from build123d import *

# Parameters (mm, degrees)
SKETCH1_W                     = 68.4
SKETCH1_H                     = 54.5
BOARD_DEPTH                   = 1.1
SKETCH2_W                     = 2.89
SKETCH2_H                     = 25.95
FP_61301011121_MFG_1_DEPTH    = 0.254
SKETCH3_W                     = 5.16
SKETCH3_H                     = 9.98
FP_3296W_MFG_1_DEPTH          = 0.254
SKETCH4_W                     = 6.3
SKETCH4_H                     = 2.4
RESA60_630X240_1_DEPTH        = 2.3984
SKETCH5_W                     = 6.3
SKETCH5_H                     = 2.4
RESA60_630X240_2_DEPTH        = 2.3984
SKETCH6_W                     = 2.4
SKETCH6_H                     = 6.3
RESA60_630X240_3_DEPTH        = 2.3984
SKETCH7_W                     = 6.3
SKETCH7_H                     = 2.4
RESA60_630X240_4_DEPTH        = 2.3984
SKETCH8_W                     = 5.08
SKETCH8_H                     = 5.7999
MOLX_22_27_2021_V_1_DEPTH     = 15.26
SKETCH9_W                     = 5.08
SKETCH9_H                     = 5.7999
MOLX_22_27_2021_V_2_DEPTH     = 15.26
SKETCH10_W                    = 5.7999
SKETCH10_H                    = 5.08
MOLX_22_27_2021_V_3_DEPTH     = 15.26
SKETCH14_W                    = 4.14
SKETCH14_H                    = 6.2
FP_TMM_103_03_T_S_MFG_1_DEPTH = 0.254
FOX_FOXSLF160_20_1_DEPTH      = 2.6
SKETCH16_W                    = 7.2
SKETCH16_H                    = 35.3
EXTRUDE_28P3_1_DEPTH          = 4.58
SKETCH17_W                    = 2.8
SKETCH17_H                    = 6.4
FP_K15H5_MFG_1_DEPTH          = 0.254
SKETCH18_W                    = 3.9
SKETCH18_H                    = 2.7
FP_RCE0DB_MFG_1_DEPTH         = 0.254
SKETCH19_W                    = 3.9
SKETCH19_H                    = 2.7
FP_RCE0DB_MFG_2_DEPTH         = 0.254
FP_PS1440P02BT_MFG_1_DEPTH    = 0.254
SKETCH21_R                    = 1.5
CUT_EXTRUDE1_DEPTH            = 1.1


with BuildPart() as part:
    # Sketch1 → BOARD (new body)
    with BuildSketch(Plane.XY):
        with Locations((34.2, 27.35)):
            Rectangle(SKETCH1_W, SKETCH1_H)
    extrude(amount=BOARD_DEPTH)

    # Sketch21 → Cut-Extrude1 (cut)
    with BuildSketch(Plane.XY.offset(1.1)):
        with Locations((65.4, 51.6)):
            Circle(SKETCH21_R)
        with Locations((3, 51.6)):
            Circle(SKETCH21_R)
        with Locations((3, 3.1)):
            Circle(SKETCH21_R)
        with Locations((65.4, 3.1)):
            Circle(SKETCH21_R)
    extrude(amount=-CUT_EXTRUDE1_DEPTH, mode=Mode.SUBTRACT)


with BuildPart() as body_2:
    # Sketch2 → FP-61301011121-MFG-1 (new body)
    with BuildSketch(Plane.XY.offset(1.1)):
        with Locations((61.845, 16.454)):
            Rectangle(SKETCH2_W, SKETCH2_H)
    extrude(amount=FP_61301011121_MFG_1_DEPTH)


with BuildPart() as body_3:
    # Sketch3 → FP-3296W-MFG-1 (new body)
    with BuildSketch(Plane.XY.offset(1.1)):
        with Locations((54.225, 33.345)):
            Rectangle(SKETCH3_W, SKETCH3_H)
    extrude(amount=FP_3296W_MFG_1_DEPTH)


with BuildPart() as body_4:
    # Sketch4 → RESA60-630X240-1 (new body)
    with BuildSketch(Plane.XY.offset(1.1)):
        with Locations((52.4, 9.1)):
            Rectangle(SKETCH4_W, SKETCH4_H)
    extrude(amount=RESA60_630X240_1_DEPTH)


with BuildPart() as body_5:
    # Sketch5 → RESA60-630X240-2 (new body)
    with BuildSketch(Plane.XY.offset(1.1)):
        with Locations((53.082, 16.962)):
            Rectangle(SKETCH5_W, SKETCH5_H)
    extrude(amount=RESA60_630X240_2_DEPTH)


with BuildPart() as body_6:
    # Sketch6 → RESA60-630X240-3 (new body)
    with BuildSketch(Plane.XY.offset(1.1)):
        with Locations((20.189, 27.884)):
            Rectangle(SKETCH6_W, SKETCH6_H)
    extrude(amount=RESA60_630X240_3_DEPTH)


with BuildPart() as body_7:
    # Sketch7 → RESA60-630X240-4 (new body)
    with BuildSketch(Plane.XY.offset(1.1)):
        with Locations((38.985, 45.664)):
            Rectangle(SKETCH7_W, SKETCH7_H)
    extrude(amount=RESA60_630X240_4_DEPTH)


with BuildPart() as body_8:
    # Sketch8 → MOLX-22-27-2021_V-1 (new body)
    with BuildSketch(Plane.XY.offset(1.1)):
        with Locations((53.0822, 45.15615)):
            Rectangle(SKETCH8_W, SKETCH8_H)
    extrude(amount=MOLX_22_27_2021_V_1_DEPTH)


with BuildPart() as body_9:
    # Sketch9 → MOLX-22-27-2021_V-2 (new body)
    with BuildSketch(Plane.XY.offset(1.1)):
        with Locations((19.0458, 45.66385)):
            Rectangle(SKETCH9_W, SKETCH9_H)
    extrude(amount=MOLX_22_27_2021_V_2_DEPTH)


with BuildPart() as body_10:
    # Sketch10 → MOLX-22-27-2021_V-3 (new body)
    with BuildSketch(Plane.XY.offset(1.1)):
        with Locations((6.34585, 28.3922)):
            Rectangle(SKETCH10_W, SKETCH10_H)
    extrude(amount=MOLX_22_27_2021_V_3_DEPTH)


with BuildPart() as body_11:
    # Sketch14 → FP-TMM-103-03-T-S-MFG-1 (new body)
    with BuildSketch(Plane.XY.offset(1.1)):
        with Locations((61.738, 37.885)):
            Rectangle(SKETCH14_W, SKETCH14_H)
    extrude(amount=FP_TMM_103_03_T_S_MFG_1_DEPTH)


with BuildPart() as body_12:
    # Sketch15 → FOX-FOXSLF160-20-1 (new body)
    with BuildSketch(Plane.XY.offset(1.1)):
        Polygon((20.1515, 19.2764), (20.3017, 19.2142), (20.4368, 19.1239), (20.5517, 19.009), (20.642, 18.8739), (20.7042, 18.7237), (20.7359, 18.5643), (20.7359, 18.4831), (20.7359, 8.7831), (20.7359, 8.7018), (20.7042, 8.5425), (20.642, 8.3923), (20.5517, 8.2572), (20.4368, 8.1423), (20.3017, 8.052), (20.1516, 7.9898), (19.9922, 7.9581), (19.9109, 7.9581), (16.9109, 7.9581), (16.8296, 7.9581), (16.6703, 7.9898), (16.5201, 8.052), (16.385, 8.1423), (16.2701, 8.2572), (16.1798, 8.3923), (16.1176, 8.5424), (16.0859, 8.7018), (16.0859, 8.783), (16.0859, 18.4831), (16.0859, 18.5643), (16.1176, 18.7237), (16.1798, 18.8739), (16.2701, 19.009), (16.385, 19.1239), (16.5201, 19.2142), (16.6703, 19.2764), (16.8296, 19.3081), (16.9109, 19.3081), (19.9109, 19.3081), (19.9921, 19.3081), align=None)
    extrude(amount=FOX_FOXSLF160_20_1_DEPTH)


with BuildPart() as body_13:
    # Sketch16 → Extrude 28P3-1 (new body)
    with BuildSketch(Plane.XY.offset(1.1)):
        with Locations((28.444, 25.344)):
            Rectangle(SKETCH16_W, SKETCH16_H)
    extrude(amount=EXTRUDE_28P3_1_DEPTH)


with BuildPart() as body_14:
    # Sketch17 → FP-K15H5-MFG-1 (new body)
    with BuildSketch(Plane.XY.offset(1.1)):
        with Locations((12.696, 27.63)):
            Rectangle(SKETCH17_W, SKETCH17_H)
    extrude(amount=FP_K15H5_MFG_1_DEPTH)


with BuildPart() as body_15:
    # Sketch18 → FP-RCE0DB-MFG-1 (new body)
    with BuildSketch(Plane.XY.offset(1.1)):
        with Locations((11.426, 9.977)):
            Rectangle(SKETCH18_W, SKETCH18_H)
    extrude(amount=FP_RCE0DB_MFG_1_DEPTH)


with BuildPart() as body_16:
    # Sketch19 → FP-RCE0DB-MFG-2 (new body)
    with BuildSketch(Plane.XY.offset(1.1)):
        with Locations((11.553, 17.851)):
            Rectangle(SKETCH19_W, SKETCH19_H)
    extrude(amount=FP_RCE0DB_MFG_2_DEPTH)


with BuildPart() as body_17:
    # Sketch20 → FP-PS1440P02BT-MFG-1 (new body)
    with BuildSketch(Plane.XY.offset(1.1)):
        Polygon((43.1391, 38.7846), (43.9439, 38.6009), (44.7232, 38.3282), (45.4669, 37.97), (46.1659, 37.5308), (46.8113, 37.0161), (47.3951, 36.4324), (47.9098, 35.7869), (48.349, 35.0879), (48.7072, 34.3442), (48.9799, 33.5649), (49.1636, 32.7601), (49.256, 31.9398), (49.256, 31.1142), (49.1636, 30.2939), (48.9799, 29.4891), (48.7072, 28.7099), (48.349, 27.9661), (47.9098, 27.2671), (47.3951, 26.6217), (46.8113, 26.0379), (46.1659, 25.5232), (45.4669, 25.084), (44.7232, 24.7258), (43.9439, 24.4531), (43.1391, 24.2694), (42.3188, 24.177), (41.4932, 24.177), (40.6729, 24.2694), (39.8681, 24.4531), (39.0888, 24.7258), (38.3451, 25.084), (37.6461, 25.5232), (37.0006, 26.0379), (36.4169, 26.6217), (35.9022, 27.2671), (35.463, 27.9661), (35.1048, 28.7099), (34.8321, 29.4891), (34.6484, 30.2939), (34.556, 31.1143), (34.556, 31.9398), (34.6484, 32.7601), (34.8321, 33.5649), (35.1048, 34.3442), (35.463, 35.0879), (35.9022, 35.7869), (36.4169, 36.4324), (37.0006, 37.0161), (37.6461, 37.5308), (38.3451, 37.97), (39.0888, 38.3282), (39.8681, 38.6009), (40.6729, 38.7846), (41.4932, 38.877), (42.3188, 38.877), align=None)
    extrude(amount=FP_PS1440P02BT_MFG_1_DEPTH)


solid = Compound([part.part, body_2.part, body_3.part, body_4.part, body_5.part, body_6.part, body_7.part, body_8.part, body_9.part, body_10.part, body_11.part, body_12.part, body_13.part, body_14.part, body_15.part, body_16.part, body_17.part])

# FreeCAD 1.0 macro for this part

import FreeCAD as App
import Part
import Sketcher
Q = App.Units.Quantity

doc = App.newDocument("Part")
body = doc.addObject("PartDesign::Body", "Body")

# Sketch on XY plane
sketch1 = doc.addObject("Sketcher::SketchObject", "Sketch")
body.addObject(sketch1)
sketch1.AttachmentSupport = (doc.XY_Plane, [""])
sketch1.MapMode = "FlatFace"
sketch1.addGeometry([
    Part.LineSegment(App.Vector(0, 55, 0), App.Vector(0, 0, 0)),
    Part.LineSegment(App.Vector(0, 0, 0), App.Vector(68, 0, 0)),
    Part.LineSegment(App.Vector(68, 0, 0), App.Vector(68, 55, 0)),
    Part.LineSegment(App.Vector(68, 55, 0), App.Vector(0, 55, 0)),
], False)
sketch1.addConstraint([
    Sketcher.Constraint("Coincident", 0, 2, 1, 1),
    Sketcher.Constraint("Coincident", 1, 2, 2, 1),
    Sketcher.Constraint("Coincident", 2, 2, 3, 1),
    Sketcher.Constraint("Coincident", 3, 2, 0, 1),
    Sketcher.Constraint("Vertical", 0),
    Sketcher.Constraint("Horizontal", 1),
    Sketcher.Constraint("Vertical", 2),
    Sketcher.Constraint("Horizontal", 3),
    Sketcher.Constraint("PointOnObject", 0, 2, -2),
    Sketcher.Constraint("DistanceX", 1, 1, 1, 2, Q("68.4 mm")),
    Sketcher.Constraint("DistanceY", 0, 2, 0, 1, Q("54.5 mm")),
    Sketcher.Constraint("DistanceY", -1, 1, 0, 2, Q("0.1 mm")),
])
pad1 = doc.addObject("PartDesign::Pad", "Pad")
body.addObject(pad1)
pad1.Profile = sketch1
pad1.Length = 1.1

# Sketch on XY plane
sketch2 = doc.addObject("Sketcher::SketchObject", "Sketch001")
body.addObject(sketch2)
sketch2.AttachmentSupport = (doc.XY_Plane, [""])
sketch2.MapMode = "FlatFace"
sketch2.AttachmentOffset = App.Placement(App.Vector(0, 0, 1.1), App.Rotation())
sketch2.addGeometry([
    Part.Circle(App.Vector(65.4, 51.6, 0), App.Vector(0, 0, 1), 1.5),
    Part.Circle(App.Vector(3, 51.6, 0), App.Vector(0, 0, 1), 1.5),
    Part.Circle(App.Vector(3, 3.1, 0), App.Vector(0, 0, 1), 1.5),
    Part.Circle(App.Vector(65.4, 3.1, 0), App.Vector(0, 0, 1), 1.5),
], False)
sketch2.addConstraint([
    Sketcher.Constraint("Equal", 0, 1),
    Sketcher.Constraint("Equal", 1, 2),
    Sketcher.Constraint("Equal", 2, 3),
    Sketcher.Constraint("Horizontal", 0, 3, 1, 3),
    Sketcher.Constraint("Horizontal", 2, 3, 3, 3),
    Sketcher.Constraint("Vertical", 1, 3, 2, 3),
    Sketcher.Constraint("Vertical", 0, 3, 3, 3),
    Sketcher.Constraint("Diameter", 0, Q("3 mm")),
    Sketcher.Constraint("DistanceX", -1, 1, 1, 3, Q("3 mm")),
    Sketcher.Constraint("DistanceX", -1, 1, 0, 3, Q("65.4 mm")),
    Sketcher.Constraint("DistanceY", -1, 1, 0, 3, Q("51.6 mm")),
    Sketcher.Constraint("DistanceY", -1, 1, 2, 3, Q("3.1 mm")),
])
pocket1 = doc.addObject("PartDesign::Pocket", "Pocket")
body.addObject(pocket1)
pocket1.Profile = sketch2
pocket1.Length = 1.1
body2 = doc.addObject("PartDesign::Body", "Body001")

# Sketch on XY plane
sketch3 = doc.addObject("Sketcher::SketchObject", "Sketch002")
body2.addObject(sketch3)
sketch3.AttachmentSupport = (doc.getObject("XY_Plane001"), [""])
sketch3.MapMode = "FlatFace"
sketch3.AttachmentOffset = App.Placement(App.Vector(0, 0, 1.1), App.Rotation())
sketch3.addGeometry([
    Part.LineSegment(App.Vector(60.4, 29.4, 0), App.Vector(60.4, 3.5, 0)),
    Part.LineSegment(App.Vector(60.4, 3.5, 0), App.Vector(63.3, 3.5, 0)),
    Part.LineSegment(App.Vector(63.3, 3.5, 0), App.Vector(63.3, 29.4, 0)),
    Part.LineSegment(App.Vector(63.3, 29.4, 0), App.Vector(60.4, 29.4, 0)),
], False)
sketch3.addConstraint([
    Sketcher.Constraint("Coincident", 0, 2, 1, 1),
    Sketcher.Constraint("Coincident", 1, 2, 2, 1),
    Sketcher.Constraint("Coincident", 2, 2, 3, 1),
    Sketcher.Constraint("Coincident", 3, 2, 0, 1),
    Sketcher.Constraint("Vertical", 0),
    Sketcher.Constraint("Horizontal", 1),
    Sketcher.Constraint("Vertical", 2),
    Sketcher.Constraint("Horizontal", 3),
    Sketcher.Constraint("DistanceX", 1, 1, 1, 2, Q("2.89 mm")),
    Sketcher.Constraint("DistanceY", 0, 2, 0, 1, Q("25.95 mm")),
    Sketcher.Constraint("DistanceX", -1, 1, 0, 2, Q("60.4 mm")),
    Sketcher.Constraint("DistanceY", -1, 1, 0, 2, Q("3.479 mm")),
])
pad2 = doc.addObject("PartDesign::Pad", "Pad001")
body2.addObject(pad2)
pad2.Profile = sketch3
pad2.Length = 0.254
body3 = doc.addObject("PartDesign::Body", "Body002")

# Sketch on XY plane
sketch4 = doc.addObject("Sketcher::SketchObject", "Sketch003")
body3.addObject(sketch4)
sketch4.AttachmentSupport = (doc.getObject("XY_Plane002"), [""])
sketch4.MapMode = "FlatFace"
sketch4.AttachmentOffset = App.Placement(App.Vector(0, 0, 1.1), App.Rotation())
sketch4.addGeometry([
    Part.LineSegment(App.Vector(52, 38, 0), App.Vector(52, 28, 0)),
    Part.LineSegment(App.Vector(52, 28, 0), App.Vector(57, 28, 0)),
    Part.LineSegment(App.Vector(57, 28, 0), App.Vector(57, 38, 0)),
    Part.LineSegment(App.Vector(57, 38, 0), App.Vector(52, 38, 0)),
], False)
sketch4.addConstraint([
    Sketcher.Constraint("Coincident", 0, 2, 1, 1),
    Sketcher.Constraint("Coincident", 1, 2, 2, 1),
    Sketcher.Constraint("Coincident", 2, 2, 3, 1),
    Sketcher.Constraint("Coincident", 3, 2, 0, 1),
    Sketcher.Constraint("Vertical", 0),
    Sketcher.Constraint("Horizontal", 1),
    Sketcher.Constraint("Vertical", 2),
    Sketcher.Constraint("Horizontal", 3),
    Sketcher.Constraint("DistanceX", 1, 1, 1, 2, Q("5.16 mm")),
    Sketcher.Constraint("DistanceY", 0, 2, 0, 1, Q("9.98 mm")),
    Sketcher.Constraint("DistanceX", -1, 1, 0, 2, Q("51.645 mm")),
    Sketcher.Constraint("DistanceY", -1, 1, 0, 2, Q("28.355 mm")),
])
pad3 = doc.addObject("PartDesign::Pad", "Pad002")
body3.addObject(pad3)
pad3.Profile = sketch4
pad3.Length = 0.254
body4 = doc.addObject("PartDesign::Body", "Body003")

# Sketch on XY plane
sketch5 = doc.addObject("Sketcher::SketchObject", "Sketch004")
body4.addObject(sketch5)
sketch5.AttachmentSupport = (doc.getObject("XY_Plane003"), [""])
sketch5.MapMode = "FlatFace"
sketch5.AttachmentOffset = App.Placement(App.Vector(0, 0, 1.1), App.Rotation())
sketch5.addGeometry([
    Part.LineSegment(App.Vector(49.2, 10.3, 0), App.Vector(49.2, 7.9, 0)),
    Part.LineSegment(App.Vector(49.2, 7.9, 0), App.Vector(55.5, 7.9, 0)),
    Part.LineSegment(App.Vector(55.5, 7.9, 0), App.Vector(55.5, 10.3, 0)),
    Part.LineSegment(App.Vector(55.5, 10.3, 0), App.Vector(49.2, 10.3, 0)),
], False)
sketch5.addConstraint([
    Sketcher.Constraint("Coincident", 0, 2, 1, 1),
    Sketcher.Constraint("Coincident", 1, 2, 2, 1),
    Sketcher.Constraint("Coincident", 2, 2, 3, 1),
    Sketcher.Constraint("Coincident", 3, 2, 0, 1),
    Sketcher.Constraint("Vertical", 0),
    Sketcher.Constraint("Horizontal", 1),
    Sketcher.Constraint("Vertical", 2),
    Sketcher.Constraint("Horizontal", 3),
    Sketcher.Constraint("DistanceX", 1, 1, 1, 2, Q("6.3 mm")),
    Sketcher.Constraint("DistanceY", 0, 2, 0, 1, Q("2.4 mm")),
    Sketcher.Constraint("DistanceY", -1, 1, 0, 2, Q("7.9 mm")),
    Sketcher.Constraint("DistanceX", -1, 1, 0, 2, Q("49.25 mm")),
])
pad4 = doc.addObject("PartDesign::Pad", "Pad003")
body4.addObject(pad4)
pad4.Profile = sketch5
pad4.Length = 2.3984
body5 = doc.addObject("PartDesign::Body", "Body004")

# Sketch on XY plane
sketch6 = doc.addObject("Sketcher::SketchObject", "Sketch005")
body5.addObject(sketch6)
sketch6.AttachmentSupport = (doc.getObject("XY_Plane004"), [""])
sketch6.MapMode = "FlatFace"
sketch6.AttachmentOffset = App.Placement(App.Vector(0, 0, 1.1), App.Rotation())
sketch6.addGeometry([
    Part.LineSegment(App.Vector(49.9, 18.2, 0), App.Vector(49.9, 15.8, 0)),
    Part.LineSegment(App.Vector(49.9, 15.8, 0), App.Vector(56.2, 15.8, 0)),
    Part.LineSegment(App.Vector(56.2, 15.8, 0), App.Vector(56.2, 18.2, 0)),
    Part.LineSegment(App.Vector(56.2, 18.2, 0), App.Vector(49.9, 18.2, 0)),
], False)
sketch6.addConstraint([
    Sketcher.Constraint("Coincident", 0, 2, 1, 1),
    Sketcher.Constraint("Coincident", 1, 2, 2, 1),
    Sketcher.Constraint("Coincident", 2, 2, 3, 1),
    Sketcher.Constraint("Coincident", 3, 2, 0, 1),
    Sketcher.Constraint("Vertical", 0),
    Sketcher.Constraint("Horizontal", 1),
    Sketcher.Constraint("Vertical", 2),
    Sketcher.Constraint("Horizontal", 3),
    Sketcher.Constraint("DistanceX", 1, 1, 1, 2, Q("6.3 mm")),
    Sketcher.Constraint("DistanceY", 0, 2, 0, 1, Q("2.4 mm")),
    Sketcher.Constraint("DistanceX", -1, 1, 0, 2, Q("49.932 mm")),
    Sketcher.Constraint("DistanceY", -1, 1, 0, 2, Q("15.762 mm")),
])
pad5 = doc.addObject("PartDesign::Pad", "Pad004")
body5.addObject(pad5)
pad5.Profile = sketch6
pad5.Length = 2.3984
body6 = doc.addObject("PartDesign::Body", "Body005")

# Sketch on XY plane
sketch7 = doc.addObject("Sketcher::SketchObject", "Sketch006")
body6.addObject(sketch7)
sketch7.AttachmentSupport = (doc.getObject("XY_Plane005"), [""])
sketch7.MapMode = "FlatFace"
sketch7.AttachmentOffset = App.Placement(App.Vector(0, 0, 1.1), App.Rotation())
sketch7.addGeometry([
    Part.LineSegment(App.Vector(19, 31, 0), App.Vector(19, 24.7, 0)),
    Part.LineSegment(App.Vector(19, 24.7, 0), App.Vector(21.4, 24.7, 0)),
    Part.LineSegment(App.Vector(21.4, 24.7, 0), App.Vector(21.4, 31, 0)),
    Part.LineSegment(App.Vector(21.4, 31, 0), App.Vector(19, 31, 0)),
], False)
sketch7.addConstraint([
    Sketcher.Constraint("Coincident", 0, 2, 1, 1),
    Sketcher.Constraint("Coincident", 1, 2, 2, 1),
    Sketcher.Constraint("Coincident", 2, 2, 3, 1),
    Sketcher.Constraint("Coincident", 3, 2, 0, 1),
    Sketcher.Constraint("Vertical", 0),
    Sketcher.Constraint("Horizontal", 1),
    Sketcher.Constraint("Vertical", 2),
    Sketcher.Constraint("Horizontal", 3),
    Sketcher.Constraint("DistanceX", 1, 1, 1, 2, Q("2.4 mm")),
    Sketcher.Constraint("DistanceY", 0, 2, 0, 1, Q("6.3 mm")),
    Sketcher.Constraint("DistanceX", -1, 1, 0, 2, Q("18.989 mm")),
    Sketcher.Constraint("DistanceY", -1, 1, 0, 2, Q("24.734 mm")),
])
pad6 = doc.addObject("PartDesign::Pad", "Pad005")
body6.addObject(pad6)
pad6.Profile = sketch7
pad6.Length = 2.3984
body7 = doc.addObject("PartDesign::Body", "Body006")

# Sketch on XY plane
sketch8 = doc.addObject("Sketcher::SketchObject", "Sketch007")
body7.addObject(sketch8)
sketch8.AttachmentSupport = (doc.getObject("XY_Plane006"), [""])
sketch8.MapMode = "FlatFace"
sketch8.AttachmentOffset = App.Placement(App.Vector(0, 0, 1.1), App.Rotation())
sketch8.addGeometry([
    Part.LineSegment(App.Vector(35.8, 46.9, 0), App.Vector(35.8, 44.5, 0)),
    Part.LineSegment(App.Vector(35.8, 44.5, 0), App.Vector(42.1, 44.5, 0)),
    Part.LineSegment(App.Vector(42.1, 44.5, 0), App.Vector(42.1, 46.9, 0)),
    Part.LineSegment(App.Vector(42.1, 46.9, 0), App.Vector(35.8, 46.9, 0)),
], False)
sketch8.addConstraint([
    Sketcher.Constraint("Coincident", 0, 2, 1, 1),
    Sketcher.Constraint("Coincident", 1, 2, 2, 1),
    Sketcher.Constraint("Coincident", 2, 2, 3, 1),
    Sketcher.Constraint("Coincident", 3, 2, 0, 1),
    Sketcher.Constraint("Vertical", 0),
    Sketcher.Constraint("Horizontal", 1),
    Sketcher.Constraint("Vertical", 2),
    Sketcher.Constraint("Horizontal", 3),
    Sketcher.Constraint("DistanceX", 1, 1, 1, 2, Q("6.3 mm")),
    Sketcher.Constraint("DistanceY", 0, 2, 0, 1, Q("2.4 mm")),
    Sketcher.Constraint("DistanceX", -1, 1, 0, 2, Q("35.835 mm")),
    Sketcher.Constraint("DistanceY", -1, 1, 0, 2, Q("44.464 mm")),
])
pad7 = doc.addObject("PartDesign::Pad", "Pad006")
body7.addObject(pad7)
pad7.Profile = sketch8
pad7.Length = 2.3984
body8 = doc.addObject("PartDesign::Body", "Body007")

# Sketch on XY plane
sketch9 = doc.addObject("Sketcher::SketchObject", "Sketch008")
body8.addObject(sketch9)
sketch9.AttachmentSupport = (doc.getObject("XY_Plane007"), [""])
sketch9.MapMode = "FlatFace"
sketch9.AttachmentOffset = App.Placement(App.Vector(0, 0, 1.1), App.Rotation())
sketch9.addGeometry([
    Part.LineSegment(App.Vector(51, 48, 0), App.Vector(51, 42, 0)),
    Part.LineSegment(App.Vector(51, 42, 0), App.Vector(56, 42, 0)),
    Part.LineSegment(App.Vector(56, 42, 0), App.Vector(56, 48, 0)),
    Part.LineSegment(App.Vector(56, 48, 0), App.Vector(51, 48, 0)),
], False)
sketch9.addConstraint([
    Sketcher.Constraint("Coincident", 0, 2, 1, 1),
    Sketcher.Constraint("Coincident", 1, 2, 2, 1),
    Sketcher.Constraint("Coincident", 2, 2, 3, 1),
    Sketcher.Constraint("Coincident", 3, 2, 0, 1),
    Sketcher.Constraint("Vertical", 0),
    Sketcher.Constraint("Horizontal", 1),
    Sketcher.Constraint("Vertical", 2),
    Sketcher.Constraint("Horizontal", 3),
    Sketcher.Constraint("DistanceX", 1, 1, 1, 2, Q("5.08 mm")),
    Sketcher.Constraint("DistanceY", 0, 2, 0, 1, Q("5.7999 mm")),
    Sketcher.Constraint("DistanceX", -1, 1, 0, 2, Q("50.5422 mm")),
    Sketcher.Constraint("DistanceY", -1, 1, 0, 2, Q("42.2562 mm")),
])
pad8 = doc.addObject("PartDesign::Pad", "Pad007")
body8.addObject(pad8)
pad8.Profile = sketch9
pad8.Length = 15.26
body9 = doc.addObject("PartDesign::Body", "Body008")

# Sketch on XY plane
sketch10 = doc.addObject("Sketcher::SketchObject", "Sketch009")
body9.addObject(sketch10)
sketch10.AttachmentSupport = (doc.getObject("XY_Plane008"), [""])
sketch10.MapMode = "FlatFace"
sketch10.AttachmentOffset = App.Placement(App.Vector(0, 0, 1.1), App.Rotation())
sketch10.addGeometry([
    Part.LineSegment(App.Vector(17, 49, 0), App.Vector(17, 43, 0)),
    Part.LineSegment(App.Vector(17, 43, 0), App.Vector(22, 43, 0)),
    Part.LineSegment(App.Vector(22, 43, 0), App.Vector(22, 49, 0)),
    Part.LineSegment(App.Vector(22, 49, 0), App.Vector(17, 49, 0)),
], False)
sketch10.addConstraint([
    Sketcher.Constraint("Coincident", 0, 2, 1, 1),
    Sketcher.Constraint("Coincident", 1, 2, 2, 1),
    Sketcher.Constraint("Coincident", 2, 2, 3, 1),
    Sketcher.Constraint("Coincident", 3, 2, 0, 1),
    Sketcher.Constraint("Vertical", 0),
    Sketcher.Constraint("Horizontal", 1),
    Sketcher.Constraint("Vertical", 2),
    Sketcher.Constraint("Horizontal", 3),
    Sketcher.Constraint("DistanceX", 1, 1, 1, 2, Q("5.08 mm")),
    Sketcher.Constraint("DistanceY", 0, 2, 0, 1, Q("5.7999 mm")),
    Sketcher.Constraint("DistanceX", -1, 1, 0, 2, Q("16.5058 mm")),
    Sketcher.Constraint("DistanceY", -1, 1, 0, 2, Q("42.7639 mm")),
])
pad9 = doc.addObject("PartDesign::Pad", "Pad008")
body9.addObject(pad9)
pad9.Profile = sketch10
pad9.Length = 15.26
body10 = doc.addObject("PartDesign::Body", "Body009")

# Sketch on XY plane
sketch11 = doc.addObject("Sketcher::SketchObject", "Sketch010")
body10.addObject(sketch11)
sketch11.AttachmentSupport = (doc.getObject("XY_Plane009"), [""])
sketch11.MapMode = "FlatFace"
sketch11.AttachmentOffset = App.Placement(App.Vector(0, 0, 1.1), App.Rotation())
sketch11.addGeometry([
    Part.LineSegment(App.Vector(3, 31, 0), App.Vector(3, 26, 0)),
    Part.LineSegment(App.Vector(3, 26, 0), App.Vector(9, 26, 0)),
    Part.LineSegment(App.Vector(9, 26, 0), App.Vector(9, 31, 0)),
    Part.LineSegment(App.Vector(9, 31, 0), App.Vector(3, 31, 0)),
], False)
sketch11.addConstraint([
    Sketcher.Constraint("Coincident", 0, 2, 1, 1),
    Sketcher.Constraint("Coincident", 1, 2, 2, 1),
    Sketcher.Constraint("Coincident", 2, 2, 3, 1),
    Sketcher.Constraint("Coincident", 3, 2, 0, 1),
    Sketcher.Constraint("Vertical", 0),
    Sketcher.Constraint("Horizontal", 1),
    Sketcher.Constraint("Vertical", 2),
    Sketcher.Constraint("Horizontal", 3),
    Sketcher.Constraint("DistanceY", 0, 2, 0, 1, Q("5.08 mm")),
    Sketcher.Constraint("DistanceX", 1, 1, 1, 2, Q("5.7999 mm")),
    Sketcher.Constraint("DistanceX", -1, 1, 0, 2, Q("3.4459 mm")),
    Sketcher.Constraint("DistanceY", -1, 1, 0, 2, Q("25.8522 mm")),
])
pad10 = doc.addObject("PartDesign::Pad", "Pad009")
body10.addObject(pad10)
pad10.Profile = sketch11
pad10.Length = 15.26
body11 = doc.addObject("PartDesign::Body", "Body010")

# Sketch on XY plane
sketch12 = doc.addObject("Sketcher::SketchObject", "Sketch011")
body11.addObject(sketch12)
sketch12.AttachmentSupport = (doc.getObject("XY_Plane010"), [""])
sketch12.MapMode = "FlatFace"
sketch12.AttachmentOffset = App.Placement(App.Vector(0, 0, 1.1), App.Rotation())
sketch12.addGeometry([
    Part.LineSegment(App.Vector(59.7, 41, 0), App.Vector(59.7, 34.8, 0)),
    Part.LineSegment(App.Vector(59.7, 34.8, 0), App.Vector(63.8, 34.8, 0)),
    Part.LineSegment(App.Vector(63.8, 34.8, 0), App.Vector(63.8, 41, 0)),
    Part.LineSegment(App.Vector(63.8, 41, 0), App.Vector(59.7, 41, 0)),
], False)
sketch12.addConstraint([
    Sketcher.Constraint("Coincident", 0, 2, 1, 1),
    Sketcher.Constraint("Coincident", 1, 2, 2, 1),
    Sketcher.Constraint("Coincident", 2, 2, 3, 1),
    Sketcher.Constraint("Coincident", 3, 2, 0, 1),
    Sketcher.Constraint("Vertical", 0),
    Sketcher.Constraint("Horizontal", 1),
    Sketcher.Constraint("Vertical", 2),
    Sketcher.Constraint("Horizontal", 3),
    Sketcher.Constraint("DistanceY", 0, 2, 0, 1, Q("6.2 mm")),
    Sketcher.Constraint("DistanceX", 1, 1, 1, 2, Q("4.14 mm")),
    Sketcher.Constraint("DistanceX", -1, 1, 0, 2, Q("59.668 mm")),
    Sketcher.Constraint("DistanceY", -1, 1, 0, 2, Q("34.785 mm")),
])
pad11 = doc.addObject("PartDesign::Pad", "Pad010")
body11.addObject(pad11)
pad11.Profile = sketch12
pad11.Length = 0.254
body12 = doc.addObject("PartDesign::Body", "Body011")

# Sketch on XY plane
sketch13 = doc.addObject("Sketcher::SketchObject", "Sketch012")
body12.addObject(sketch13)
sketch13.AttachmentSupport = (doc.getObject("XY_Plane011"), [""])
sketch13.MapMode = "FlatFace"
sketch13.AttachmentOffset = App.Placement(App.Vector(0, 0, 1.1), App.Rotation())
sketch13.addGeometry([
    Part.LineSegment(App.Vector(20.3, 19.21, 0), App.Vector(20.15, 19.28, 0)),  # 0
    Part.LineSegment(App.Vector(20.15, 19.28, 0), App.Vector(19.99, 19.31, 0)),  # 1
    Part.LineSegment(App.Vector(19.99, 19.31, 0), App.Vector(16.83, 19.31, 0)),  # 2
    Part.LineSegment(App.Vector(16.83, 19.31, 0), App.Vector(16.67, 19.28, 0)),  # 3
    Part.LineSegment(App.Vector(16.67, 19.28, 0), App.Vector(16.52, 19.21, 0)),  # 4
    Part.LineSegment(App.Vector(16.52, 19.21, 0), App.Vector(16.39, 19.12, 0)),  # 5
    Part.LineSegment(App.Vector(16.39, 19.12, 0), App.Vector(16.27, 19.01, 0)),  # 6
    Part.LineSegment(App.Vector(16.27, 19.01, 0), App.Vector(16.18, 18.87, 0)),  # 7
    Part.LineSegment(App.Vector(16.18, 18.87, 0), App.Vector(16.12, 18.72, 0)),  # 8
    Part.LineSegment(App.Vector(16.12, 18.72, 0), App.Vector(16.09, 18.56, 0)),  # 9
    Part.LineSegment(App.Vector(16.09, 18.56, 0), App.Vector(16.09, 8.7, 0)),  # 10
    Part.LineSegment(App.Vector(16.09, 8.7, 0), App.Vector(16.12, 8.54, 0)),  # 11
    Part.LineSegment(App.Vector(16.12, 8.54, 0), App.Vector(16.18, 8.39, 0)),  # 12
    Part.LineSegment(App.Vector(16.18, 8.39, 0), App.Vector(16.27, 8.26, 0)),  # 13
    Part.LineSegment(App.Vector(16.27, 8.26, 0), App.Vector(16.39, 8.14, 0)),  # 14
    Part.LineSegment(App.Vector(16.39, 8.14, 0), App.Vector(16.52, 8.05, 0)),  # 15
    Part.LineSegment(App.Vector(16.52, 8.05, 0), App.Vector(16.67, 7.99, 0)),  # 16
    Part.LineSegment(App.Vector(16.67, 7.99, 0), App.Vector(16.83, 7.96, 0)),  # 17
    Part.LineSegment(App.Vector(16.83, 7.96, 0), App.Vector(19.99, 7.96, 0)),  # 18
    Part.LineSegment(App.Vector(19.99, 7.96, 0), App.Vector(20.15, 7.99, 0)),  # 19
    Part.LineSegment(App.Vector(20.15, 7.99, 0), App.Vector(20.3, 8.05, 0)),  # 20
    Part.LineSegment(App.Vector(20.3, 8.05, 0), App.Vector(20.44, 8.14, 0)),  # 21
    Part.LineSegment(App.Vector(20.44, 8.14, 0), App.Vector(20.55, 8.26, 0)),  # 22
    Part.LineSegment(App.Vector(20.55, 8.26, 0), App.Vector(20.64, 8.39, 0)),  # 23
    Part.LineSegment(App.Vector(20.64, 8.39, 0), App.Vector(20.7, 8.54, 0)),  # 24
    Part.LineSegment(App.Vector(20.7, 8.54, 0), App.Vector(20.74, 8.7, 0)),  # 25
    Part.LineSegment(App.Vector(20.74, 8.7, 0), App.Vector(20.74, 18.56, 0)),  # 26
    Part.LineSegment(App.Vector(20.74, 18.56, 0), App.Vector(20.7, 18.72, 0)),  # 27
    Part.LineSegment(App.Vector(20.7, 18.72, 0), App.Vector(20.64, 18.87, 0)),  # 28
    Part.LineSegment(App.Vector(20.64, 18.87, 0), App.Vector(20.55, 19.01, 0)),  # 29
    Part.LineSegment(App.Vector(20.55, 19.01, 0), App.Vector(20.44, 19.12, 0)),  # 30
    Part.LineSegment(App.Vector(20.44, 19.12, 0), App.Vector(20.3, 19.21, 0)),  # 31
], False)
sketch13.addConstraint([
    Sketcher.Constraint("Coincident", 0, 2, 1, 1),
    Sketcher.Constraint("Coincident", 1, 2, 2, 1),
    Sketcher.Constraint("Coincident", 2, 2, 3, 1),
    Sketcher.Constraint("Coincident", 3, 2, 4, 1),
    Sketcher.Constraint("Coincident", 4, 2, 5, 1),
    Sketcher.Constraint("Coincident", 5, 2, 6, 1),
    Sketcher.Constraint("Coincident", 6, 2, 7, 1),
    Sketcher.Constraint("Coincident", 7, 2, 8, 1),
    Sketcher.Constraint("Coincident", 8, 2, 9, 1),
    Sketcher.Constraint("Coincident", 9, 2, 10, 1),
    Sketcher.Constraint("Coincident", 10, 2, 11, 1),
    Sketcher.Constraint("Coincident", 11, 2, 12, 1),
    Sketcher.Constraint("Coincident", 12, 2, 13, 1),
    Sketcher.Constraint("Coincident", 13, 2, 14, 1),
    Sketcher.Constraint("Coincident", 14, 2, 15, 1),
    Sketcher.Constraint("Coincident", 15, 2, 16, 1),
    Sketcher.Constraint("Coincident", 16, 2, 17, 1),
    Sketcher.Constraint("Coincident", 17, 2, 18, 1),
    Sketcher.Constraint("Coincident", 18, 2, 19, 1),
    Sketcher.Constraint("Coincident", 19, 2, 20, 1),
    Sketcher.Constraint("Coincident", 20, 2, 21, 1),
    Sketcher.Constraint("Coincident", 21, 2, 22, 1),
    Sketcher.Constraint("Coincident", 22, 2, 23, 1),
    Sketcher.Constraint("Coincident", 23, 2, 24, 1),
    Sketcher.Constraint("Coincident", 24, 2, 25, 1),
    Sketcher.Constraint("Coincident", 25, 2, 26, 1),
    Sketcher.Constraint("Coincident", 26, 2, 27, 1),
    Sketcher.Constraint("Coincident", 27, 2, 28, 1),
    Sketcher.Constraint("Coincident", 28, 2, 29, 1),
    Sketcher.Constraint("Coincident", 29, 2, 30, 1),
    Sketcher.Constraint("Coincident", 30, 2, 31, 1),
    Sketcher.Constraint("Coincident", 31, 2, 0, 1),
    Sketcher.Constraint("Horizontal", 2),
    Sketcher.Constraint("Vertical", 10),
    Sketcher.Constraint("Horizontal", 18),
    Sketcher.Constraint("Vertical", 26),
    Sketcher.Constraint("Perpendicular", 0, 8),
    Sketcher.Constraint("Perpendicular", 1, 9),
    Sketcher.Constraint("Perpendicular", 5, 13),
    Sketcher.Constraint("Perpendicular", 6, 14),
    Sketcher.Constraint("Perpendicular", 7, 15),
    Sketcher.Constraint("Perpendicular", 8, 16),
    Sketcher.Constraint("Perpendicular", 11, 19),
    Sketcher.Constraint("Perpendicular", 12, 20),
    Sketcher.Constraint("Perpendicular", 13, 21),
    Sketcher.Constraint("Perpendicular", 14, 22),
    Sketcher.Constraint("Perpendicular", 15, 23),
    Sketcher.Constraint("Perpendicular", 16, 24),
    Sketcher.Constraint("Perpendicular", 17, 25),
    Sketcher.Constraint("Perpendicular", 19, 27),
    Sketcher.Constraint("Perpendicular", 4, 28),
    Sketcher.Constraint("Perpendicular", 21, 29),
    Sketcher.Constraint("Perpendicular", 22, 30),
    Sketcher.Constraint("Perpendicular", 23, 31),
    Sketcher.Constraint("Horizontal", 0, 2, 3, 2),
    Sketcher.Constraint("Horizontal", 16, 2, 19, 2),
    Sketcher.Constraint("Horizontal", 15, 2, 20, 2),
    Sketcher.Constraint("Horizontal", 14, 2, 21, 2),
    Sketcher.Constraint("Horizontal", 13, 2, 22, 2),
    Sketcher.Constraint("Horizontal", 12, 2, 23, 2),
    Sketcher.Constraint("Horizontal", 10, 2, 25, 2),
    Sketcher.Constraint("Horizontal", 9, 2, 26, 2),
    Sketcher.Constraint("Horizontal", 8, 2, 27, 2),
    Sketcher.Constraint("Horizontal", 7, 2, 28, 2),
    Sketcher.Constraint("Horizontal", 6, 2, 29, 2),
    Sketcher.Constraint("Horizontal", 5, 2, 30, 2),
    Sketcher.Constraint("Horizontal", 4, 2, 31, 2),
    Sketcher.Constraint("Vertical", 8, 2, 11, 2),
    Sketcher.Constraint("Vertical", 7, 2, 12, 2),
    Sketcher.Constraint("Vertical", 6, 2, 13, 2),
    Sketcher.Constraint("Vertical", 5, 2, 14, 2),
    Sketcher.Constraint("Vertical", 4, 2, 15, 2),
    Sketcher.Constraint("Vertical", 3, 2, 16, 2),
    Sketcher.Constraint("Vertical", 2, 2, 17, 2),
    Sketcher.Constraint("Vertical", 24, 2, 27, 2),
    Sketcher.Constraint("Vertical", 23, 2, 28, 2),
    Sketcher.Constraint("Vertical", 22, 2, 29, 2),
    Sketcher.Constraint("Vertical", 21, 2, 30, 2),
    Sketcher.Constraint("Equal", 0, 4),
    Sketcher.Constraint("Equal", 5, 7),
    Sketcher.Constraint("Equal", 4, 8),
    Sketcher.Constraint("Equal", 1, 9),
    Sketcher.Constraint("Equal", 9, 11),
    Sketcher.Constraint("Equal", 3, 17),
    Sketcher.Constraint("DistanceX", 6, 2, 4, 2, Q("0.25 mm")),
    Sketcher.Constraint("DistanceX", 2, 2, 2, 1, Q("3.1625 mm")),
    Sketcher.Constraint("DistanceX", 18, 1, 18, 2, Q("3.1626 mm")),
    Sketcher.Constraint("DistanceY", 10, 2, 10, 1, Q("9.8625 mm")),
    Sketcher.Constraint("DistanceX", -1, 1, 5, 2, Q("16.385 mm")),
    Sketcher.Constraint("DistanceY", -1, 1, 6, 2, Q("19.009 mm")),
    Sketcher.Constraint("DistanceY", -1, 1, 15, 2, Q("8.052 mm")),
    Sketcher.Constraint("DistanceX", 4, 2, 1, 2, Q("3.472 mm")),
    Sketcher.Constraint("DistanceX", 17, 2, 19, 2, Q("3.322 mm")),
    Sketcher.Constraint("Distance", 5, Q("0.1625 mm")),
    Sketcher.Constraint("DistanceY", -1, 1, 0, 2, Q("19.2764 mm")),
    Sketcher.Constraint("DistanceY", -1, 1, 1, 2, Q("19.3081 mm")),
])
pad12 = doc.addObject("PartDesign::Pad", "Pad011")
body12.addObject(pad12)
pad12.Profile = sketch13
pad12.Length = 2.6
body13 = doc.addObject("PartDesign::Body", "Body012")

# Sketch on XY plane
sketch14 = doc.addObject("Sketcher::SketchObject", "Sketch013")
body13.addObject(sketch14)
sketch14.AttachmentSupport = (doc.getObject("XY_Plane012"), [""])
sketch14.MapMode = "FlatFace"
sketch14.AttachmentOffset = App.Placement(App.Vector(0, 0, 1.1), App.Rotation())
sketch14.addGeometry([
    Part.LineSegment(App.Vector(25, 43, 0), App.Vector(25, 8, 0)),
    Part.LineSegment(App.Vector(25, 8, 0), App.Vector(32, 8, 0)),
    Part.LineSegment(App.Vector(32, 8, 0), App.Vector(32, 43, 0)),
    Part.LineSegment(App.Vector(32, 43, 0), App.Vector(25, 43, 0)),
], False)
sketch14.addConstraint([
    Sketcher.Constraint("Coincident", 0, 2, 1, 1),
    Sketcher.Constraint("Coincident", 1, 2, 2, 1),
    Sketcher.Constraint("Coincident", 2, 2, 3, 1),
    Sketcher.Constraint("Coincident", 3, 2, 0, 1),
    Sketcher.Constraint("Vertical", 0),
    Sketcher.Constraint("Horizontal", 1),
    Sketcher.Constraint("Vertical", 2),
    Sketcher.Constraint("Horizontal", 3),
    Sketcher.Constraint("DistanceX", 1, 1, 1, 2, Q("7.2 mm")),
    Sketcher.Constraint("DistanceY", 0, 2, 0, 1, Q("35.3 mm")),
    Sketcher.Constraint("DistanceX", -1, 1, 0, 2, Q("24.844 mm")),
    Sketcher.Constraint("DistanceY", -1, 1, 0, 2, Q("7.694 mm")),
])
pad13 = doc.addObject("PartDesign::Pad", "Pad012")
body13.addObject(pad13)
pad13.Profile = sketch14
pad13.Length = 4.58
body14 = doc.addObject("PartDesign::Body", "Body013")

# Sketch on XY plane
sketch15 = doc.addObject("Sketcher::SketchObject", "Sketch014")
body14.addObject(sketch15)
sketch15.AttachmentSupport = (doc.getObject("XY_Plane013"), [""])
sketch15.MapMode = "FlatFace"
sketch15.AttachmentOffset = App.Placement(App.Vector(0, 0, 1.1), App.Rotation())
sketch15.addGeometry([
    Part.LineSegment(App.Vector(11.3, 30.8, 0), App.Vector(11.3, 24.4, 0)),
    Part.LineSegment(App.Vector(11.3, 24.4, 0), App.Vector(14.1, 24.4, 0)),
    Part.LineSegment(App.Vector(14.1, 24.4, 0), App.Vector(14.1, 30.8, 0)),
    Part.LineSegment(App.Vector(14.1, 30.8, 0), App.Vector(11.3, 30.8, 0)),
], False)
sketch15.addConstraint([
    Sketcher.Constraint("Coincident", 0, 2, 1, 1),
    Sketcher.Constraint("Coincident", 1, 2, 2, 1),
    Sketcher.Constraint("Coincident", 2, 2, 3, 1),
    Sketcher.Constraint("Coincident", 3, 2, 0, 1),
    Sketcher.Constraint("Vertical", 0),
    Sketcher.Constraint("Horizontal", 1),
    Sketcher.Constraint("Vertical", 2),
    Sketcher.Constraint("Horizontal", 3),
    Sketcher.Constraint("DistanceX", 1, 1, 1, 2, Q("2.8 mm")),
    Sketcher.Constraint("DistanceY", 0, 2, 0, 1, Q("6.4 mm")),
    Sketcher.Constraint("DistanceY", -1, 1, 0, 2, Q("24.43 mm")),
    Sketcher.Constraint("DistanceX", -1, 1, 0, 2, Q("11.296 mm")),
])
pad14 = doc.addObject("PartDesign::Pad", "Pad013")
body14.addObject(pad14)
pad14.Profile = sketch15
pad14.Length = 0.254
body15 = doc.addObject("PartDesign::Body", "Body014")

# Sketch on XY plane
sketch16 = doc.addObject("Sketcher::SketchObject", "Sketch015")
body15.addObject(sketch16)
sketch16.AttachmentSupport = (doc.getObject("XY_Plane014"), [""])
sketch16.MapMode = "FlatFace"
sketch16.AttachmentOffset = App.Placement(App.Vector(0, 0, 1.1), App.Rotation())
sketch16.addGeometry([
    Part.LineSegment(App.Vector(9.5, 11.3, 0), App.Vector(9.5, 8.6, 0)),
    Part.LineSegment(App.Vector(9.5, 8.6, 0), App.Vector(13.4, 8.6, 0)),
    Part.LineSegment(App.Vector(13.4, 8.6, 0), App.Vector(13.4, 11.3, 0)),
    Part.LineSegment(App.Vector(13.4, 11.3, 0), App.Vector(9.5, 11.3, 0)),
], False)
sketch16.addConstraint([
    Sketcher.Constraint("Coincident", 0, 2, 1, 1),
    Sketcher.Constraint("Coincident", 1, 2, 2, 1),
    Sketcher.Constraint("Coincident", 2, 2, 3, 1),
    Sketcher.Constraint("Coincident", 3, 2, 0, 1),
    Sketcher.Constraint("Vertical", 0),
    Sketcher.Constraint("Horizontal", 1),
    Sketcher.Constraint("Vertical", 2),
    Sketcher.Constraint("Horizontal", 3),
    Sketcher.Constraint("DistanceX", 1, 1, 1, 2, Q("3.9 mm")),
    Sketcher.Constraint("DistanceY", 0, 2, 0, 1, Q("2.7 mm")),
    Sketcher.Constraint("DistanceX", -1, 1, 0, 2, Q("9.476 mm")),
    Sketcher.Constraint("DistanceY", -1, 1, 0, 2, Q("8.627 mm")),
])
pad15 = doc.addObject("PartDesign::Pad", "Pad014")
body15.addObject(pad15)
pad15.Profile = sketch16
pad15.Length = 0.254
body16 = doc.addObject("PartDesign::Body", "Body015")

# Sketch on XY plane
sketch17 = doc.addObject("Sketcher::SketchObject", "Sketch016")
body16.addObject(sketch17)
sketch17.AttachmentSupport = (doc.getObject("XY_Plane015"), [""])
sketch17.MapMode = "FlatFace"
sketch17.AttachmentOffset = App.Placement(App.Vector(0, 0, 1.1), App.Rotation())
sketch17.addGeometry([
    Part.LineSegment(App.Vector(9.6, 19.2, 0), App.Vector(9.6, 16.5, 0)),
    Part.LineSegment(App.Vector(9.6, 16.5, 0), App.Vector(13.5, 16.5, 0)),
    Part.LineSegment(App.Vector(13.5, 16.5, 0), App.Vector(13.5, 19.2, 0)),
    Part.LineSegment(App.Vector(13.5, 19.2, 0), App.Vector(9.6, 19.2, 0)),
], False)
sketch17.addConstraint([
    Sketcher.Constraint("Coincident", 0, 2, 1, 1),
    Sketcher.Constraint("Coincident", 1, 2, 2, 1),
    Sketcher.Constraint("Coincident", 2, 2, 3, 1),
    Sketcher.Constraint("Coincident", 3, 2, 0, 1),
    Sketcher.Constraint("Vertical", 0),
    Sketcher.Constraint("Horizontal", 1),
    Sketcher.Constraint("Vertical", 2),
    Sketcher.Constraint("Horizontal", 3),
    Sketcher.Constraint("DistanceX", 1, 1, 1, 2, Q("3.9 mm")),
    Sketcher.Constraint("DistanceY", 0, 2, 0, 1, Q("2.7 mm")),
    Sketcher.Constraint("DistanceX", -1, 1, 0, 2, Q("9.603 mm")),
    Sketcher.Constraint("DistanceY", -1, 1, 0, 2, Q("16.501 mm")),
])
pad16 = doc.addObject("PartDesign::Pad", "Pad015")
body16.addObject(pad16)
pad16.Profile = sketch17
pad16.Length = 0.254
body17 = doc.addObject("PartDesign::Body", "Body016")

# Sketch on XY plane
sketch18 = doc.addObject("Sketcher::SketchObject", "Sketch017")
body17.addObject(sketch18)
sketch18.AttachmentSupport = (doc.getObject("XY_Plane016"), [""])
sketch18.MapMode = "FlatFace"
sketch18.AttachmentOffset = App.Placement(App.Vector(0, 0, 1.1), App.Rotation())
sketch18.addGeometry([
    Part.LineSegment(App.Vector(43.9, 38.6, 0), App.Vector(43.1, 38.8, 0)),  # 0
    Part.LineSegment(App.Vector(43.1, 38.8, 0), App.Vector(42.3, 38.9, 0)),  # 1
    Part.LineSegment(App.Vector(42.3, 38.9, 0), App.Vector(41.5, 38.9, 0)),  # 2
    Part.LineSegment(App.Vector(41.5, 38.9, 0), App.Vector(40.7, 38.8, 0)),  # 3
    Part.LineSegment(App.Vector(40.7, 38.8, 0), App.Vector(39.9, 38.6, 0)),  # 4
    Part.LineSegment(App.Vector(39.9, 38.6, 0), App.Vector(39.1, 38.3, 0)),  # 5
    Part.LineSegment(App.Vector(39.1, 38.3, 0), App.Vector(38.3, 38, 0)),  # 6
    Part.LineSegment(App.Vector(38.3, 38, 0), App.Vector(37.6, 37.5, 0)),  # 7
    Part.LineSegment(App.Vector(37.6, 37.5, 0), App.Vector(37, 37, 0)),  # 8
    Part.LineSegment(App.Vector(37, 37, 0), App.Vector(36.4, 36.4, 0)),  # 9
    Part.LineSegment(App.Vector(36.4, 36.4, 0), App.Vector(35.9, 35.8, 0)),  # 10
    Part.LineSegment(App.Vector(35.9, 35.8, 0), App.Vector(35.5, 35.1, 0)),  # 11
    Part.LineSegment(App.Vector(35.5, 35.1, 0), App.Vector(35.1, 34.3, 0)),  # 12
    Part.LineSegment(App.Vector(35.1, 34.3, 0), App.Vector(34.8, 33.6, 0)),  # 13
    Part.LineSegment(App.Vector(34.8, 33.6, 0), App.Vector(34.6, 32.8, 0)),  # 14
    Part.LineSegment(App.Vector(34.6, 32.8, 0), App.Vector(34.6, 31.9, 0)),  # 15
    Part.LineSegment(App.Vector(34.6, 31.9, 0), App.Vector(34.6, 31.1, 0)),  # 16
    Part.LineSegment(App.Vector(34.6, 31.1, 0), App.Vector(34.6, 30.3, 0)),  # 17
    Part.LineSegment(App.Vector(34.6, 30.3, 0), App.Vector(34.8, 29.5, 0)),  # 18
    Part.LineSegment(App.Vector(34.8, 29.5, 0), App.Vector(35.1, 28.7, 0)),  # 19
    Part.LineSegment(App.Vector(35.1, 28.7, 0), App.Vector(35.5, 28, 0)),  # 20
    Part.LineSegment(App.Vector(35.5, 28, 0), App.Vector(35.9, 27.3, 0)),  # 21
    Part.LineSegment(App.Vector(35.9, 27.3, 0), App.Vector(36.4, 26.6, 0)),  # 22
    Part.LineSegment(App.Vector(36.4, 26.6, 0), App.Vector(37, 26, 0)),  # 23
    Part.LineSegment(App.Vector(37, 26, 0), App.Vector(37.6, 25.5, 0)),  # 24
    Part.LineSegment(App.Vector(37.6, 25.5, 0), App.Vector(38.3, 25.1, 0)),  # 25
    Part.LineSegment(App.Vector(38.3, 25.1, 0), App.Vector(39.1, 24.7, 0)),  # 26
    Part.LineSegment(App.Vector(39.1, 24.7, 0), App.Vector(39.9, 24.5, 0)),  # 27
    Part.LineSegment(App.Vector(39.9, 24.5, 0), App.Vector(40.7, 24.3, 0)),  # 28
    Part.LineSegment(App.Vector(40.7, 24.3, 0), App.Vector(41.5, 24.2, 0)),  # 29
    Part.LineSegment(App.Vector(41.5, 24.2, 0), App.Vector(42.3, 24.2, 0)),  # 30
    Part.LineSegment(App.Vector(42.3, 24.2, 0), App.Vector(43.1, 24.3, 0)),  # 31
    Part.LineSegment(App.Vector(43.1, 24.3, 0), App.Vector(43.9, 24.5, 0)),  # 32
    Part.LineSegment(App.Vector(43.9, 24.5, 0), App.Vector(44.7, 24.7, 0)),  # 33
    Part.LineSegment(App.Vector(44.7, 24.7, 0), App.Vector(45.5, 25.1, 0)),  # 34
    Part.LineSegment(App.Vector(45.5, 25.1, 0), App.Vector(46.2, 25.5, 0)),  # 35
    Part.LineSegment(App.Vector(46.2, 25.5, 0), App.Vector(46.8, 26, 0)),  # 36
    Part.LineSegment(App.Vector(46.8, 26, 0), App.Vector(47.4, 26.6, 0)),  # 37
    Part.LineSegment(App.Vector(47.4, 26.6, 0), App.Vector(47.9, 27.3, 0)),  # 38
    Part.LineSegment(App.Vector(47.9, 27.3, 0), App.Vector(48.3, 28, 0)),  # 39
    Part.LineSegment(App.Vector(48.3, 28, 0), App.Vector(48.7, 28.7, 0)),  # 40
    Part.LineSegment(App.Vector(48.7, 28.7, 0), App.Vector(49, 29.5, 0)),  # 41
    Part.LineSegment(App.Vector(49, 29.5, 0), App.Vector(49.2, 30.3, 0)),  # 42
    Part.LineSegment(App.Vector(49.2, 30.3, 0), App.Vector(49.3, 31.1, 0)),  # 43
    Part.LineSegment(App.Vector(49.3, 31.1, 0), App.Vector(49.3, 31.9, 0)),  # 44
    Part.LineSegment(App.Vector(49.3, 31.9, 0), App.Vector(49.2, 32.8, 0)),  # 45
    Part.LineSegment(App.Vector(49.2, 32.8, 0), App.Vector(49, 33.6, 0)),  # 46
    Part.LineSegment(App.Vector(49, 33.6, 0), App.Vector(48.7, 34.3, 0)),  # 47
    Part.LineSegment(App.Vector(48.7, 34.3, 0), App.Vector(48.3, 35.1, 0)),  # 48
    Part.LineSegment(App.Vector(48.3, 35.1, 0), App.Vector(47.9, 35.8, 0)),  # 49
    Part.LineSegment(App.Vector(47.9, 35.8, 0), App.Vector(47.4, 36.4, 0)),  # 50
    Part.LineSegment(App.Vector(47.4, 36.4, 0), App.Vector(46.8, 37, 0)),  # 51
    Part.LineSegment(App.Vector(46.8, 37, 0), App.Vector(46.2, 37.5, 0)),  # 52
    Part.LineSegment(App.Vector(46.2, 37.5, 0), App.Vector(45.5, 38, 0)),  # 53
    Part.LineSegment(App.Vector(45.5, 38, 0), App.Vector(44.7, 38.3, 0)),  # 54
    Part.LineSegment(App.Vector(44.7, 38.3, 0), App.Vector(43.9, 38.6, 0)),  # 55
], False)
sketch18.addConstraint([
    Sketcher.Constraint("Coincident", 0, 2, 1, 1),
    Sketcher.Constraint("Coincident", 1, 2, 2, 1),
    Sketcher.Constraint("Coincident", 2, 2, 3, 1),
    Sketcher.Constraint("Coincident", 3, 2, 4, 1),
    Sketcher.Constraint("Coincident", 4, 2, 5, 1),
    Sketcher.Constraint("Coincident", 5, 2, 6, 1),
    Sketcher.Constraint("Coincident", 6, 2, 7, 1),
    Sketcher.Constraint("Coincident", 7, 2, 8, 1),
    Sketcher.Constraint("Coincident", 8, 2, 9, 1),
    Sketcher.Constraint("Coincident", 9, 2, 10, 1),
    Sketcher.Constraint("Coincident", 10, 2, 11, 1),
    Sketcher.Constraint("Coincident", 11, 2, 12, 1),
    Sketcher.Constraint("Coincident", 12, 2, 13, 1),
    Sketcher.Constraint("Coincident", 13, 2, 14, 1),
    Sketcher.Constraint("Coincident", 14, 2, 15, 1),
    Sketcher.Constraint("Coincident", 15, 2, 16, 1),
    Sketcher.Constraint("Coincident", 16, 2, 17, 1),
    Sketcher.Constraint("Coincident", 17, 2, 18, 1),
    Sketcher.Constraint("Coincident", 18, 2, 19, 1),
    Sketcher.Constraint("Coincident", 19, 2, 20, 1),
    Sketcher.Constraint("Coincident", 20, 2, 21, 1),
    Sketcher.Constraint("Coincident", 21, 2, 22, 1),
    Sketcher.Constraint("Coincident", 22, 2, 23, 1),
    Sketcher.Constraint("Coincident", 23, 2, 24, 1),
    Sketcher.Constraint("Coincident", 24, 2, 25, 1),
    Sketcher.Constraint("Coincident", 25, 2, 26, 1),
    Sketcher.Constraint("Coincident", 26, 2, 27, 1),
    Sketcher.Constraint("Coincident", 27, 2, 28, 1),
    Sketcher.Constraint("Coincident", 28, 2, 29, 1),
    Sketcher.Constraint("Coincident", 29, 2, 30, 1),
    Sketcher.Constraint("Coincident", 30, 2, 31, 1),
    Sketcher.Constraint("Coincident", 31, 2, 32, 1),
    Sketcher.Constraint("Coincident", 32, 2, 33, 1),
    Sketcher.Constraint("Coincident", 33, 2, 34, 1),
    Sketcher.Constraint("Coincident", 34, 2, 35, 1),
    Sketcher.Constraint("Coincident", 35, 2, 36, 1),
    Sketcher.Constraint("Coincident", 36, 2, 37, 1),
    Sketcher.Constraint("Coincident", 37, 2, 38, 1),
    Sketcher.Constraint("Coincident", 38, 2, 39, 1),
    Sketcher.Constraint("Coincident", 39, 2, 40, 1),
    Sketcher.Constraint("Coincident", 40, 2, 41, 1),
    Sketcher.Constraint("Coincident", 41, 2, 42, 1),
    Sketcher.Constraint("Coincident", 42, 2, 43, 1),
    Sketcher.Constraint("Coincident", 43, 2, 44, 1),
    Sketcher.Constraint("Coincident", 44, 2, 45, 1),
    Sketcher.Constraint("Coincident", 45, 2, 46, 1),
    Sketcher.Constraint("Coincident", 46, 2, 47, 1),
    Sketcher.Constraint("Coincident", 47, 2, 48, 1),
    Sketcher.Constraint("Coincident", 48, 2, 49, 1),
    Sketcher.Constraint("Coincident", 49, 2, 50, 1),
    Sketcher.Constraint("Coincident", 50, 2, 51, 1),
    Sketcher.Constraint("Coincident", 51, 2, 52, 1),
    Sketcher.Constraint("Coincident", 52, 2, 53, 1),
    Sketcher.Constraint("Coincident", 53, 2, 54, 1),
    Sketcher.Constraint("Coincident", 54, 2, 55, 1),
    Sketcher.Constraint("Coincident", 55, 2, 0, 1),
    Sketcher.Constraint("Horizontal", 2),
    Sketcher.Constraint("Vertical", 16),
    Sketcher.Constraint("Horizontal", 30),
    Sketcher.Constraint("Vertical", 44),
    Sketcher.Constraint("Perpendicular", 0, 14),
    Sketcher.Constraint("Perpendicular", 1, 15),
    Sketcher.Constraint("Perpendicular", 4, 18),
    Sketcher.Constraint("Perpendicular", 7, 21),
    Sketcher.Constraint("Perpendicular", 10, 24),
    Sketcher.Constraint("Perpendicular", 11, 25),
    Sketcher.Constraint("Perpendicular", 12, 26),
    Sketcher.Constraint("Perpendicular", 13, 27),
    Sketcher.Constraint("Perpendicular", 14, 28),
    Sketcher.Constraint("Perpendicular", 15, 29),
    Sketcher.Constraint("Parallel", 3, 31),
    Sketcher.Constraint("Perpendicular", 18, 32),
    Sketcher.Constraint("Parallel", 5, 33),
    Sketcher.Constraint("Parallel", 6, 34),
    Sketcher.Constraint("Perpendicular", 21, 35),
    Sketcher.Constraint("Perpendicular", 22, 36),
    Sketcher.Constraint("Parallel", 9, 37),
    Sketcher.Constraint("Perpendicular", 25, 39),
    Sketcher.Constraint("Perpendicular", 28, 42),
    Sketcher.Constraint("Perpendicular", 29, 43),
    Sketcher.Constraint("Perpendicular", 31, 45),
    Sketcher.Constraint("Perpendicular", 32, 46),
    Sketcher.Constraint("Perpendicular", 33, 47),
    Sketcher.Constraint("Perpendicular", 34, 48),
    Sketcher.Constraint("Perpendicular", 35, 49),
    Sketcher.Constraint("Perpendicular", 8, 50),
    Sketcher.Constraint("Perpendicular", 38, 52),
    Sketcher.Constraint("Perpendicular", 39, 53),
    Sketcher.Constraint("Parallel", 26, 54),
    Sketcher.Constraint("Parallel", 27, 55),
    Sketcher.Constraint("Horizontal", 0, 2, 3, 2),
    Sketcher.Constraint("Horizontal", 28, 2, 31, 2),
    Sketcher.Constraint("Horizontal", 27, 2, 32, 2),
    Sketcher.Constraint("Horizontal", 26, 2, 33, 2),
    Sketcher.Constraint("Horizontal", 25, 2, 34, 2),
    Sketcher.Constraint("Horizontal", 24, 2, 35, 2),
    Sketcher.Constraint("Horizontal", 23, 2, 36, 2),
    Sketcher.Constraint("Horizontal", 22, 2, 37, 2),
    Sketcher.Constraint("Horizontal", 21, 2, 38, 2),
    Sketcher.Constraint("Horizontal", 20, 2, 39, 2),
    Sketcher.Constraint("Horizontal", 19, 2, 40, 2),
    Sketcher.Constraint("Horizontal", 18, 2, 41, 2),
    Sketcher.Constraint("Horizontal", 17, 2, 42, 2),
    Sketcher.Constraint("Horizontal", 15, 2, 44, 2),
    Sketcher.Constraint("Horizontal", 14, 2, 45, 2),
    Sketcher.Constraint("Horizontal", 13, 2, 46, 2),
    Sketcher.Constraint("Horizontal", 12, 2, 47, 2),
    Sketcher.Constraint("Horizontal", 11, 2, 48, 2),
    Sketcher.Constraint("Horizontal", 10, 2, 49, 2),
    Sketcher.Constraint("Horizontal", 9, 2, 50, 2),
    Sketcher.Constraint("Horizontal", 8, 2, 51, 2),
    Sketcher.Constraint("Horizontal", 7, 2, 52, 2),
    Sketcher.Constraint("Horizontal", 6, 2, 53, 2),
    Sketcher.Constraint("Horizontal", 5, 2, 54, 2),
    Sketcher.Constraint("Horizontal", 4, 2, 55, 2),
    Sketcher.Constraint("Vertical", 14, 2, 17, 2),
    Sketcher.Constraint("Vertical", 13, 2, 18, 2),
    Sketcher.Constraint("Vertical", 12, 2, 19, 2),
    Sketcher.Constraint("Vertical", 11, 2, 20, 2),
    Sketcher.Constraint("Vertical", 10, 2, 21, 2),
    Sketcher.Constraint("Vertical", 9, 2, 22, 2),
    Sketcher.Constraint("Vertical", 8, 2, 23, 2),
    Sketcher.Constraint("Vertical", 7, 2, 24, 2),
    Sketcher.Constraint("Vertical", 6, 2, 25, 2),
    Sketcher.Constraint("Vertical", 5, 2, 26, 2),
    Sketcher.Constraint("Vertical", 4, 2, 27, 2),
    Sketcher.Constraint("Vertical", 3, 2, 28, 2),
    Sketcher.Constraint("Vertical", 2, 2, 29, 2),
    Sketcher.Constraint("Vertical", 1, 2, 30, 2),
    Sketcher.Constraint("Vertical", 0, 2, 31, 2),
    Sketcher.Constraint("Vertical", 42, 2, 45, 2),
    Sketcher.Constraint("Vertical", 41, 2, 46, 2),
    Sketcher.Constraint("Vertical", 40, 2, 47, 2),
    Sketcher.Constraint("Vertical", 39, 2, 48, 2),
    Sketcher.Constraint("Vertical", 38, 2, 49, 2),
    Sketcher.Constraint("Vertical", 37, 2, 50, 2),
    Sketcher.Constraint("Vertical", 36, 2, 51, 2),
    Sketcher.Constraint("Vertical", 33, 2, 54, 2),
    Sketcher.Constraint("Equal", 30, 44),
    Sketcher.Constraint("Equal", 8, 10),
    Sketcher.Constraint("Equal", 7, 11),
    Sketcher.Constraint("Equal", 6, 12),
    Sketcher.Constraint("Equal", 5, 13),
    Sketcher.Constraint("Equal", 4, 14),
    Sketcher.Constraint("Equal", 3, 15),
    Sketcher.Constraint("Equal", 10, 24),
    Sketcher.Constraint("Angle", 9, Q("-135 deg")),
    Sketcher.Constraint("DistanceY", -1, 1, 6, 2, Q("37.97 mm")),
    Sketcher.Constraint("DistanceX", 5, 2, 1, 2, Q("3.23 mm")),
    Sketcher.Constraint("DistanceX", 2, 2, 2, 1, Q("0.8256 mm")),
    Sketcher.Constraint("DistanceY", 16, 2, 16, 1, Q("0.8255 mm")),
    Sketcher.Constraint("DistanceY", -1, 1, 1, 2, Q("38.877 mm")),
    Sketcher.Constraint("DistanceX", -1, 1, 11, 2, Q("35.463 mm")),
    Sketcher.Constraint("DistanceY", -1, 1, 25, 2, Q("25.084 mm")),
    Sketcher.Constraint("DistanceX", -1, 1, 39, 2, Q("48.349 mm")),
    Sketcher.Constraint("DistanceX", 4, 2, 0, 2, Q("3.271 mm")),
    Sketcher.Constraint("DistanceX", 6, 2, 4, 2, Q("1.523 mm")),
    Sketcher.Constraint("DistanceX", 7, 2, 6, 2, Q("0.699 mm")),
    Sketcher.Constraint("DistanceY", 19, 2, 17, 2, Q("1.584 mm")),
    Sketcher.Constraint("DistanceY", 23, 2, 19, 2, Q("2.672 mm")),
    Sketcher.Constraint("Distance", 0, Q("0.825499 mm")),
    Sketcher.Constraint("DistanceX", -1, 1, 0, 2, Q("43.1391 mm")),
    Sketcher.Constraint("DistanceY", -1, 1, 0, 2, Q("38.7846 mm")),
    Sketcher.Constraint("DistanceX", -1, 1, 1, 2, Q("42.3188 mm")),
    Sketcher.Constraint("DistanceY", -1, 1, 5, 2, Q("38.3282 mm")),
    Sketcher.Constraint("DistanceY", -1, 1, 7, 2, Q("37.5308 mm")),
    Sketcher.Constraint("DistanceX", -1, 1, 8, 2, Q("37.0006 mm")),
    Sketcher.Constraint("DistanceY", -1, 1, 22, 2, Q("26.6217 mm")),
])
pad17 = doc.addObject("PartDesign::Pad", "Pad016")
body17.addObject(pad17)
pad17.Profile = sketch18
pad17.Length = 0.254

doc.recompute()
